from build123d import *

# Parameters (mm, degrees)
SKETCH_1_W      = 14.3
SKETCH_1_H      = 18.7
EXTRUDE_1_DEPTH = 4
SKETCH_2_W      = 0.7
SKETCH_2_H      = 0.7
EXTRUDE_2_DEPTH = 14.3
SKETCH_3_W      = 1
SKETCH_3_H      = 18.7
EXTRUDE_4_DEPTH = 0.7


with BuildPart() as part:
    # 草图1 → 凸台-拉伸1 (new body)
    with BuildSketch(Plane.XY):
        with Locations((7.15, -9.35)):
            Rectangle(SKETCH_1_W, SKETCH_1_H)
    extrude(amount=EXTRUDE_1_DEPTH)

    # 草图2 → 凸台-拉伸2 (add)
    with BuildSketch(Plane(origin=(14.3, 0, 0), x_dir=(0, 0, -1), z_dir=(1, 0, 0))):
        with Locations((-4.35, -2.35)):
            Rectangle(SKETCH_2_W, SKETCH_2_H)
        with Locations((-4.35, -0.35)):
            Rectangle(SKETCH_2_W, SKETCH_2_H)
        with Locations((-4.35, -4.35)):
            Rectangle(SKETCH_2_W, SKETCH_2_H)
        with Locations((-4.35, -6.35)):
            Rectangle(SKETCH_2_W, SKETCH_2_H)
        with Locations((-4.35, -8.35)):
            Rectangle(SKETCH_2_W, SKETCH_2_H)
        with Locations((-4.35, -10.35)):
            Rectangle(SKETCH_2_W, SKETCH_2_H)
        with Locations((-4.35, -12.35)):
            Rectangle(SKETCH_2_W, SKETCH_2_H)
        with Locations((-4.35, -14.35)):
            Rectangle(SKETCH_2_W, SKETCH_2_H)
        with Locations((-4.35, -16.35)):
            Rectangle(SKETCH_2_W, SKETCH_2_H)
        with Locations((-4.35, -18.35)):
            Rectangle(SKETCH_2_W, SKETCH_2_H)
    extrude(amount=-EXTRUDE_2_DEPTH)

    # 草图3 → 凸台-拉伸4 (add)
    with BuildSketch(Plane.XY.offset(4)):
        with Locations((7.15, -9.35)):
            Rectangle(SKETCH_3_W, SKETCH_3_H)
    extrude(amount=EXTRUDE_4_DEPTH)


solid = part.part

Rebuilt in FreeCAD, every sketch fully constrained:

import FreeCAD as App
import Part
import Sketcher

V = App.Vector
Q = App.Units.Quantity


def add_polygon(sketch, points):
    """Adds a closed chain of lines whose ends are joined by coincident constraints."""
    first, n = sketch.GeometryCount, len(points)
    for a, b in zip(points, points[1:] + points[:1]):
        sketch.addGeometry(Part.LineSegment(App.Vector(*a, 0), App.Vector(*b, 0)), False)
    for i in range(n):
        sketch.addConstraint(Sketcher.Constraint("Coincident", first + i, 2, first + (i + 1) % n, 1))

doc = App.newDocument("Part")
body = doc.addObject("PartDesign::Body", "Body")

# Sketch on XY plane
sketch1 = body.newObject("Sketcher::SketchObject", "Sketch")
sketch1.AttachmentSupport = (doc.getObject("XY_Plane"), [""])
sketch1.MapMode = "FlatFace"
add_polygon(sketch1, [(0, 0), (0, -18.7), (14.3, -18.7), (14.3, 0)])  # lines 0-3
sketch1.addConstraint(Sketcher.Constraint("Vertical", 0))
sketch1.addConstraint(Sketcher.Constraint("Horizontal", 1))
sketch1.addConstraint(Sketcher.Constraint("Vertical", 2))
sketch1.addConstraint(Sketcher.Constraint("Horizontal", 3))
sketch1.addConstraint(Sketcher.Constraint("Coincident", 3, 2, -1, 1))
sketch1.addConstraint(Sketcher.Constraint("DistanceX", 1, 1, 1, 2, Q("14.3 mm")))
sketch1.addConstraint(Sketcher.Constraint("DistanceY", 0, 2, 0, 1, Q("18.7 mm")))
pad1 = body.newObject("PartDesign::Pad", "Pad")
pad1.Profile = sketch1
pad1.Length = 4

# Sketch on YZ plane
sketch2 = body.newObject("Sketcher::SketchObject", "Sketch001")
sketch2.AttachmentSupport = (doc.getObject("YZ_Plane"), [""])
sketch2.MapMode = "FlatFace"
sketch2.AttachmentOffset = App.Placement(V(0, 0, 14.3), App.Rotation())
add_polygon(sketch2, [(-2, 4.7), (-2.7, 4.7), (-2.7, 4), (-2, 4)])  # lines 0-3
add_polygon(sketch2, [(0, 4.7), (-0.7, 4.7), (-0.7, 4), (0, 4)])  # lines 4-7
add_polygon(sketch2, [(-4, 4.7), (-4.7, 4.7), (-4.7, 4), (-4, 4)])  # lines 8-11
add_polygon(sketch2, [(-6, 4.7), (-6.7, 4.7), (-6.7, 4), (-6, 4)])  # lines 12-15
add_polygon(sketch2, [(-8, 4.7), (-8.7, 4.7), (-8.7, 4), (-8, 4)])  # lines 16-19
add_polygon(sketch2, [(-10, 4.7), (-10.7, 4.7), (-10.7, 4), (-10, 4)])  # lines 20-23
add_polygon(sketch2, [(-12, 4.7), (-12.7, 4.7), (-12.7, 4), (-12, 4)])  # lines 24-27
add_polygon(sketch2, [(-14, 4.7), (-14.7, 4.7), (-14.7, 4), (-14, 4)])  # lines 28-31
add_polygon(sketch2, [(-16, 4.7), (-16.7, 4.7), (-16.7, 4), (-16, 4)])  # lines 32-35
add_polygon(sketch2, [(-18, 4.7), (-18.7, 4.7), (-18.7, 4), (-18, 4)])  # lines 36-39
sketch2.addConstraint(Sketcher.Constraint("Horizontal", 0))
sketch2.addConstraint(Sketcher.Constraint("Vertical", 1))
sketch2.addConstraint(Sketcher.Constraint("Horizontal", 2))
sketch2.addConstraint(Sketcher.Constraint("Vertical", 3))
sketch2.addConstraint(Sketcher.Constraint("Horizontal", 4))
sketch2.addConstraint(Sketcher.Constraint("Vertical", 5))
sketch2.addConstraint(Sketcher.Constraint("Horizontal", 6))
sketch2.addConstraint(Sketcher.Constraint("Vertical", 7))
sketch2.addConstraint(Sketcher.Constraint("Horizontal", 8))
sketch2.addConstraint(Sketcher.Constraint("Vertical", 9))
sketch2.addConstraint(Sketcher.Constraint("Horizontal", 10))
sketch2.addConstraint(Sketcher.Constraint("Vertical", 11))
sketch2.addConstraint(Sketcher.Constraint("Horizontal", 12))
sketch2.addConstraint(Sketcher.Constraint("Vertical", 13))
sketch2.addConstraint(Sketcher.Constraint("Horizontal", 14))
sketch2.addConstraint(Sketcher.Constraint("Vertical", 15))
sketch2.addConstraint(Sketcher.Constraint("Horizontal", 16))
sketch2.addConstraint(Sketcher.Constraint("Vertical", 17))
sketch2.addConstraint(Sketcher.Constraint("Horizontal", 18))
sketch2.addConstraint(Sketcher.Constraint("Vertical", 19))
sketch2.addConstraint(Sketcher.Constraint("Horizontal", 20))
sketch2.addConstraint(Sketcher.Constraint("Vertical", 21))
sketch2.addConstraint(Sketcher.Constraint("Horizontal", 22))
sketch2.addConstraint(Sketcher.Constraint("Vertical", 23))
sketch2.addConstraint(Sketcher.Constraint("Horizontal", 24))
sketch2.addConstraint(Sketcher.Constraint("Vertical", 25))
sketch2.addConstraint(Sketcher.Constraint("Horizontal", 26))
sketch2.addConstraint(Sketcher.Constraint("Vertical", 27))
sketch2.addConstraint(Sketcher.Constraint("Horizontal", 28))
sketch2.addConstraint(Sketcher.Constraint("Vertical", 29))
sketch2.addConstraint(Sketcher.Constraint("Horizontal", 30))
sketch2.addConstraint(Sketcher.Constraint("Vertical", 31))
sketch2.addConstraint(Sketcher.Constraint("Horizontal", 32))
sketch2.addConstraint(Sketcher.Constraint("Vertical", 33))
sketch2.addConstraint(Sketcher.Constraint("Horizontal", 34))
sketch2.addConstraint(Sketcher.Constraint("Vertical", 35))
sketch2.addConstraint(Sketcher.Constraint("Horizontal", 36))
sketch2.addConstraint(Sketcher.Constraint("Vertical", 37))
sketch2.addConstraint(Sketcher.Constraint("Horizontal", 38))
sketch2.addConstraint(Sketcher.Constraint("Vertical", 39))
sketch2.addConstraint(Sketcher.Constraint("PointOnObject", 6, 2, -2))
sketch2.addConstraint(Sketcher.Constraint("Horizontal", 3, 2, 4, 2))
sketch2.addConstraint(Sketcher.Constraint("Horizontal", 2, 2, 5, 2))
sketch2.addConstraint(Sketcher.Constraint("Horizontal", 7, 2, 8, 2))
sketch2.addConstraint(Sketcher.Constraint("Horizontal", 6, 2, 9, 2))
sketch2.addConstraint(Sketcher.Constraint("Horizontal", 11, 2, 12, 2))
sketch2.addConstraint(Sketcher.Constraint("Horizontal", 10, 2, 13, 2))
sketch2.addConstraint(Sketcher.Constraint("Horizontal", 15, 2, 16, 2))
sketch2.addConstraint(Sketcher.Constraint("Horizontal", 14, 2, 17, 2))
sketch2.addConstraint(Sketcher.Constraint("Horizontal", 19, 2, 20, 2))
sketch2.addConstraint(Sketcher.Constraint("Horizontal", 18, 2, 21, 2))
sketch2.addConstraint(Sketcher.Constraint("Horizontal", 23, 2, 24, 2))
sketch2.addConstraint(Sketcher.Constraint("Horizontal", 22, 2, 25, 2))
sketch2.addConstraint(Sketcher.Constraint("Horizontal", 27, 2, 28, 2))
sketch2.addConstraint(Sketcher.Constraint("Horizontal", 26, 2, 29, 2))
sketch2.addConstraint(Sketcher.Constraint("Horizontal", 31, 2, 32, 2))
sketch2.addConstraint(Sketcher.Constraint("Horizontal", 30, 2, 33, 2))
sketch2.addConstraint(Sketcher.Constraint("Horizontal", 35, 2, 36, 2))
sketch2.addConstraint(Sketcher.Constraint("Horizontal", 34, 2, 37, 2))
sketch2.addConstraint(Sketcher.Constraint("Equal", 2, 4))
sketch2.addConstraint(Sketcher.Constraint("Equal", 6, 8))
sketch2.addConstraint(Sketcher.Constraint("Equal", 10, 12))
sketch2.addConstraint(Sketcher.Constraint("Equal", 14, 16))
sketch2.addConstraint(Sketcher.Constraint("Equal", 18, 20))
sketch2.addConstraint(Sketcher.Constraint("Equal", 22, 24))
sketch2.addConstraint(Sketcher.Constraint("Equal", 26, 28))
sketch2.addConstraint(Sketcher.Constraint("Equal", 30, 32))
sketch2.addConstraint(Sketcher.Constraint("Equal", 34, 36))
sketch2.addConstraint(Sketcher.Constraint("Equal", 38, 1))
sketch2.addConstraint(Sketcher.Constraint("DistanceX", 0, 2, 0, 1, Q("0.7 mm")))
sketch2.addConstraint(Sketcher.Constraint("DistanceY", -1, 1, 1, 2, Q("4 mm")))
sketch2.addConstraint(Sketcher.Constraint("DistanceX", 2, 2, -1, 1, Q("2 mm")))
sketch2.addConstraint(Sketcher.Constraint("DistanceX", 10, 2, -1, 1, Q("4 mm")))
sketch2.addConstraint(Sketcher.Constraint("DistanceX", 14, 2, -1, 1, Q("6 mm")))
sketch2.addConstraint(Sketcher.Constraint("DistanceX", 18, 2, -1, 1, Q("8 mm")))
sketch2.addConstraint(Sketcher.Constraint("DistanceX", 22, 2, -1, 1, Q("10 mm")))
sketch2.addConstraint(Sketcher.Constraint("DistanceX", 26, 2, -1, 1, Q("12 mm")))
sketch2.addConstraint(Sketcher.Constraint("DistanceX", 30, 2, -1, 1, Q("14 mm")))
sketch2.addConstraint(Sketcher.Constraint("DistanceX", 34, 2, -1, 1, Q("16 mm")))
sketch2.addConstraint(Sketcher.Constraint("DistanceX", 38, 2, -1, 1, Q("18 mm")))
pad2 = body.newObject("PartDesign::Pad", "Pad001")
pad2.Profile = sketch2
pad2.Length = 14.3
pad2.Reversed = True

# Sketch on XY plane
sketch3 = body.newObject("Sketcher::SketchObject", "Sketch002")
sketch3.AttachmentSupport = (doc.getObject("XY_Plane"), [""])
sketch3.MapMode = "FlatFace"
sketch3.AttachmentOffset = App.Placement(V(0, 0, 4), App.Rotation())
add_polygon(sketch3, [(6.65, 0), (6.65, -18.7), (7.65, -18.7), (7.65, 0)])  # lines 0-3
sketch3.addConstraint(Sketcher.Constraint("Vertical", 0))
sketch3.addConstraint(Sketcher.Constraint("Horizontal", 1))
sketch3.addConstraint(Sketcher.Constraint("Vertical", 2))
sketch3.addConstraint(Sketcher.Constraint("Horizontal", 3))
sketch3.addConstraint(Sketcher.Constraint("PointOnObject", 2, 2, -1))
sketch3.addConstraint(Sketcher.Constraint("DistanceX", 1, 1, 1, 2, Q("1 mm")))
sketch3.addConstraint(Sketcher.Constraint("DistanceY", 0, 2, 0, 1, Q("18.7 mm")))
sketch3.addConstraint(Sketcher.Constraint("DistanceX", -1, 1, 0, 2, Q("6.65 mm")))
pad3 = body.newObject("PartDesign::Pad", "Pad002")
pad3.Profile = sketch3
pad3.Length = 0.7

doc.recompute()
